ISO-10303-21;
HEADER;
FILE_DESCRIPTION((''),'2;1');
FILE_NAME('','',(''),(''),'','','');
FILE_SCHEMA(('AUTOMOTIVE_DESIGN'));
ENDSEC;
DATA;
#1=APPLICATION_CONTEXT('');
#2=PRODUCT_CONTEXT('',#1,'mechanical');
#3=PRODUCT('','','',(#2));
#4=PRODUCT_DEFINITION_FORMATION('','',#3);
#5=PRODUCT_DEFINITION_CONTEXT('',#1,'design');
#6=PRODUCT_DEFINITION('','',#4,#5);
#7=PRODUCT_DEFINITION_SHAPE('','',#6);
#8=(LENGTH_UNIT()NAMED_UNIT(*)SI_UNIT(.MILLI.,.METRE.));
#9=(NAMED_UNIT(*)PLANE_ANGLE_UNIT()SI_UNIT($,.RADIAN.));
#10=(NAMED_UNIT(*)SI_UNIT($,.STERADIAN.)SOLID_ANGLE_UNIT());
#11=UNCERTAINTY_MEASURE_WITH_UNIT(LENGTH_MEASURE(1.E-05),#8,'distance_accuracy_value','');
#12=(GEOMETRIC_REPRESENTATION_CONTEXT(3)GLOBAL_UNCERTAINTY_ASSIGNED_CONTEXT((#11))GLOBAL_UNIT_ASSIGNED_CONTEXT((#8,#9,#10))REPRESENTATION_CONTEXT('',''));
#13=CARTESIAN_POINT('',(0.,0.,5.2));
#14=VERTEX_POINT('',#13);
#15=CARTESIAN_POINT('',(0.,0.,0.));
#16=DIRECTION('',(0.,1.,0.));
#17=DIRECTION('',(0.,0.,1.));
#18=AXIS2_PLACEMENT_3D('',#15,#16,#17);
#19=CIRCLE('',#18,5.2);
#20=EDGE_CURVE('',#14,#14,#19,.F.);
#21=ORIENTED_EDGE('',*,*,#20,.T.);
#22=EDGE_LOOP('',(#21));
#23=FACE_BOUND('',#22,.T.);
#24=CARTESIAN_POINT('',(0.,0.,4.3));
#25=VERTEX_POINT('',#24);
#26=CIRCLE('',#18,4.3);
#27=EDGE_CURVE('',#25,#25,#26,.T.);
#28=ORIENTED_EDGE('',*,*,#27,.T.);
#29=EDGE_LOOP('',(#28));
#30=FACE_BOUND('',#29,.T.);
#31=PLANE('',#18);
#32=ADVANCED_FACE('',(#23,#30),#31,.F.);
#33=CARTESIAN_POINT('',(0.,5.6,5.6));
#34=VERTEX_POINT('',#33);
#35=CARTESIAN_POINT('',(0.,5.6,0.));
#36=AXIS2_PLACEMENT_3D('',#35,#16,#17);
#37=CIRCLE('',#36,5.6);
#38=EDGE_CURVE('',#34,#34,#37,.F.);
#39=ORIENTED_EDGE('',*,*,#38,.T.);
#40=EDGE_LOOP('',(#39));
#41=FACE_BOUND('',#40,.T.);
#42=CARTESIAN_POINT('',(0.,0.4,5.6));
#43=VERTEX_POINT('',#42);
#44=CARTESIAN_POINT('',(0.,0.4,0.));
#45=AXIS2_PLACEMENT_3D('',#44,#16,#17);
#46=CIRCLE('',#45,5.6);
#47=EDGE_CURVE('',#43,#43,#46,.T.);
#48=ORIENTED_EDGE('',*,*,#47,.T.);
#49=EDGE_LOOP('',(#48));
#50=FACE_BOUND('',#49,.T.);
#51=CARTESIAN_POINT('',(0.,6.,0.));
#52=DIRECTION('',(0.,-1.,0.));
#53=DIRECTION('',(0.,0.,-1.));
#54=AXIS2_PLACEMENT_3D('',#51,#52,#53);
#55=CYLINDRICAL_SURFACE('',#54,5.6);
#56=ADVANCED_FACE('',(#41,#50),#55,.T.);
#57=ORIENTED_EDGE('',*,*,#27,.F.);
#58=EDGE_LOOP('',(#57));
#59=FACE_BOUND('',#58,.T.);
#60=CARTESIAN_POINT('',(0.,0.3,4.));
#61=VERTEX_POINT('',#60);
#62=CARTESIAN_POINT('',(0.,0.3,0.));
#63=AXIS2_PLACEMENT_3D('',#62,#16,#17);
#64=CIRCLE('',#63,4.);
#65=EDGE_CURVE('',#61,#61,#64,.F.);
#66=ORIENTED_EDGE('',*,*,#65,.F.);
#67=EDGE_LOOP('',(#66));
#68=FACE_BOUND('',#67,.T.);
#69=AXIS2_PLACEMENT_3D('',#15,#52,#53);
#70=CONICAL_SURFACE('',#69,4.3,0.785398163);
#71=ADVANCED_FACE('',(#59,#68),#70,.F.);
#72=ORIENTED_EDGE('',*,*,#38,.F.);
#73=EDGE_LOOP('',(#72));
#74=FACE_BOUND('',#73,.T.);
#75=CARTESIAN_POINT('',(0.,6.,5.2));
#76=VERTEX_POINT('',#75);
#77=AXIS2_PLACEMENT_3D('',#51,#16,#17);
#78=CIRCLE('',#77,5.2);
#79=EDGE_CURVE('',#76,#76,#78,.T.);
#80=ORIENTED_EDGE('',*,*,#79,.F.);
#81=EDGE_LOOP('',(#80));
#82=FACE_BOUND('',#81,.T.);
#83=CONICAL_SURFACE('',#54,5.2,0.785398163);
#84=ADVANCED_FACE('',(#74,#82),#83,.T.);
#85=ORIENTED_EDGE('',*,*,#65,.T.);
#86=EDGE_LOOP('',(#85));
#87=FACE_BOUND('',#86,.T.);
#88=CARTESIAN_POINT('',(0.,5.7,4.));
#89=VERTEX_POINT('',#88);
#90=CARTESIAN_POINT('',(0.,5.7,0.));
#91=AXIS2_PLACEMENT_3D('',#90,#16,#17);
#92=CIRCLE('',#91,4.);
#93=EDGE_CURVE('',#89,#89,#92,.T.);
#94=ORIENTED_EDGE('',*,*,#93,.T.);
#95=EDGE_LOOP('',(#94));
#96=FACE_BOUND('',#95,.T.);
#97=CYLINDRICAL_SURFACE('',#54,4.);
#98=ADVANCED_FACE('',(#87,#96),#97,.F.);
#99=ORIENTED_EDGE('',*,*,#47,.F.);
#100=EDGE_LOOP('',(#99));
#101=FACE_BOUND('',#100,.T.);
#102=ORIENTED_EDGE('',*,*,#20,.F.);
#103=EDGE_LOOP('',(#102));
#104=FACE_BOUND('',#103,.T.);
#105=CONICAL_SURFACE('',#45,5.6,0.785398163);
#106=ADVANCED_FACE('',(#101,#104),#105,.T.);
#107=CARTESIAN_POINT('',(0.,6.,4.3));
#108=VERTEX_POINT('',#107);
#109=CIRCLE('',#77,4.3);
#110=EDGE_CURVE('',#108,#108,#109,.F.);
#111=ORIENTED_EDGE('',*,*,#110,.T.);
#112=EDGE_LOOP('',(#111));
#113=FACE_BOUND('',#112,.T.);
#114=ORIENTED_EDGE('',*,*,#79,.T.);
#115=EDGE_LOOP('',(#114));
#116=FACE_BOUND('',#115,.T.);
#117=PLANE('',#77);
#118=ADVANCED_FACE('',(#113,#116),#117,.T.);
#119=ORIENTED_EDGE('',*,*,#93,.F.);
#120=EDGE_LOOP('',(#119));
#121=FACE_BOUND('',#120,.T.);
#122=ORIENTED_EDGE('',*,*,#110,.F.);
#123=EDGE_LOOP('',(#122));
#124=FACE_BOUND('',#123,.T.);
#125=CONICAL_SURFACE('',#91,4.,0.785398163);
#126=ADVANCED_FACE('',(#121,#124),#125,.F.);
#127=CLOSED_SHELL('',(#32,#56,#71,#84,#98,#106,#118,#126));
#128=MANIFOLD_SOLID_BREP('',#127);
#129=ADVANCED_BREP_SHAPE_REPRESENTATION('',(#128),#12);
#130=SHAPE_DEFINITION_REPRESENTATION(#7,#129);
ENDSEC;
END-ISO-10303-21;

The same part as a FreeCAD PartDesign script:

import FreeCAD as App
import Part
import Sketcher

V = App.Vector
Q = App.Units.Quantity


def edges_at(feature, points):
    """Names of the edges that pass closest to the given points."""
    edges = feature.Shape.Edges
    near = lambda p: min(range(len(edges)), key=lambda i: edges[i].distToShape(Part.Vertex(*p))[0])
    return sorted({f"Edge{near(p) + 1}" for p in points})

doc = App.newDocument("Part")
params = doc.addObject("Spreadsheet::Sheet", "Params")
for row, (alias, value) in enumerate([
    ("sketch1_diameter", "8 mm"),
    ("sketch1_diameter2", "11.2 mm"),
    ("pad1_length", "6 mm"),
    ("chamfer_size", "0.3 mm"),
    ("chamfer2_size", "0.4 mm"),
], start=1):
    params.set(f"A{row}", alias)
    params.set(f"B{row}", "=" + value)
    params.setAlias(f"B{row}", alias)

body = doc.addObject("PartDesign::Body", "Body")

sketch1 = body.newObject("Sketcher::SketchObject", "Sketch")
sketch1.AttachmentSupport = (doc.getObject("XZ_Plane"), [""])
sketch1.MapMode = "FlatFace"
sketch1.addGeometry(Part.Circle(V(0, 0, 0), V(0, 0, 1), 5.6), False)
sketch1.addGeometry(Part.Circle(V(0, 0, 0), V(0, 0, 1), 4), False)
sketch1.addConstraint(Sketcher.Constraint("Coincident", 0, 3, -1, 1))
sketch1.addConstraint(Sketcher.Constraint("Coincident", 1, 3, -1, 1))
sketch1.addConstraint(Sketcher.Constraint("Diameter", 1, Q("8 mm")))
sketch1.addConstraint(Sketcher.Constraint("Diameter", 0, Q("11.2 mm")))
sketch1.setExpression("Constraints[2]", "Params.sketch1_diameter")
sketch1.setExpression("Constraints[3]", "Params.sketch1_diameter2")
pad1 = body.newObject("PartDesign::Pad", "Pad")
pad1.Profile = sketch1
pad1.setExpression("Length", "Params.pad1_length")
pad1.Reversed = True
doc.recompute()

chamfer = body.newObject("PartDesign::Chamfer", "Chamfer")
chamfer.Base = (pad1, edges_at(pad1, [(0, 0, -4), (0, 6, -4)]))
chamfer.setExpression("Size", "Params.chamfer_size")
doc.recompute()

chamfer2 = body.newObject("PartDesign::Chamfer", "Chamfer001")
chamfer2.Base = (chamfer, edges_at(chamfer, [(0, 0, -5.6), (0, 6, -5.6)]))
chamfer2.setExpression("Size", "Params.chamfer2_size")

doc.recompute()
